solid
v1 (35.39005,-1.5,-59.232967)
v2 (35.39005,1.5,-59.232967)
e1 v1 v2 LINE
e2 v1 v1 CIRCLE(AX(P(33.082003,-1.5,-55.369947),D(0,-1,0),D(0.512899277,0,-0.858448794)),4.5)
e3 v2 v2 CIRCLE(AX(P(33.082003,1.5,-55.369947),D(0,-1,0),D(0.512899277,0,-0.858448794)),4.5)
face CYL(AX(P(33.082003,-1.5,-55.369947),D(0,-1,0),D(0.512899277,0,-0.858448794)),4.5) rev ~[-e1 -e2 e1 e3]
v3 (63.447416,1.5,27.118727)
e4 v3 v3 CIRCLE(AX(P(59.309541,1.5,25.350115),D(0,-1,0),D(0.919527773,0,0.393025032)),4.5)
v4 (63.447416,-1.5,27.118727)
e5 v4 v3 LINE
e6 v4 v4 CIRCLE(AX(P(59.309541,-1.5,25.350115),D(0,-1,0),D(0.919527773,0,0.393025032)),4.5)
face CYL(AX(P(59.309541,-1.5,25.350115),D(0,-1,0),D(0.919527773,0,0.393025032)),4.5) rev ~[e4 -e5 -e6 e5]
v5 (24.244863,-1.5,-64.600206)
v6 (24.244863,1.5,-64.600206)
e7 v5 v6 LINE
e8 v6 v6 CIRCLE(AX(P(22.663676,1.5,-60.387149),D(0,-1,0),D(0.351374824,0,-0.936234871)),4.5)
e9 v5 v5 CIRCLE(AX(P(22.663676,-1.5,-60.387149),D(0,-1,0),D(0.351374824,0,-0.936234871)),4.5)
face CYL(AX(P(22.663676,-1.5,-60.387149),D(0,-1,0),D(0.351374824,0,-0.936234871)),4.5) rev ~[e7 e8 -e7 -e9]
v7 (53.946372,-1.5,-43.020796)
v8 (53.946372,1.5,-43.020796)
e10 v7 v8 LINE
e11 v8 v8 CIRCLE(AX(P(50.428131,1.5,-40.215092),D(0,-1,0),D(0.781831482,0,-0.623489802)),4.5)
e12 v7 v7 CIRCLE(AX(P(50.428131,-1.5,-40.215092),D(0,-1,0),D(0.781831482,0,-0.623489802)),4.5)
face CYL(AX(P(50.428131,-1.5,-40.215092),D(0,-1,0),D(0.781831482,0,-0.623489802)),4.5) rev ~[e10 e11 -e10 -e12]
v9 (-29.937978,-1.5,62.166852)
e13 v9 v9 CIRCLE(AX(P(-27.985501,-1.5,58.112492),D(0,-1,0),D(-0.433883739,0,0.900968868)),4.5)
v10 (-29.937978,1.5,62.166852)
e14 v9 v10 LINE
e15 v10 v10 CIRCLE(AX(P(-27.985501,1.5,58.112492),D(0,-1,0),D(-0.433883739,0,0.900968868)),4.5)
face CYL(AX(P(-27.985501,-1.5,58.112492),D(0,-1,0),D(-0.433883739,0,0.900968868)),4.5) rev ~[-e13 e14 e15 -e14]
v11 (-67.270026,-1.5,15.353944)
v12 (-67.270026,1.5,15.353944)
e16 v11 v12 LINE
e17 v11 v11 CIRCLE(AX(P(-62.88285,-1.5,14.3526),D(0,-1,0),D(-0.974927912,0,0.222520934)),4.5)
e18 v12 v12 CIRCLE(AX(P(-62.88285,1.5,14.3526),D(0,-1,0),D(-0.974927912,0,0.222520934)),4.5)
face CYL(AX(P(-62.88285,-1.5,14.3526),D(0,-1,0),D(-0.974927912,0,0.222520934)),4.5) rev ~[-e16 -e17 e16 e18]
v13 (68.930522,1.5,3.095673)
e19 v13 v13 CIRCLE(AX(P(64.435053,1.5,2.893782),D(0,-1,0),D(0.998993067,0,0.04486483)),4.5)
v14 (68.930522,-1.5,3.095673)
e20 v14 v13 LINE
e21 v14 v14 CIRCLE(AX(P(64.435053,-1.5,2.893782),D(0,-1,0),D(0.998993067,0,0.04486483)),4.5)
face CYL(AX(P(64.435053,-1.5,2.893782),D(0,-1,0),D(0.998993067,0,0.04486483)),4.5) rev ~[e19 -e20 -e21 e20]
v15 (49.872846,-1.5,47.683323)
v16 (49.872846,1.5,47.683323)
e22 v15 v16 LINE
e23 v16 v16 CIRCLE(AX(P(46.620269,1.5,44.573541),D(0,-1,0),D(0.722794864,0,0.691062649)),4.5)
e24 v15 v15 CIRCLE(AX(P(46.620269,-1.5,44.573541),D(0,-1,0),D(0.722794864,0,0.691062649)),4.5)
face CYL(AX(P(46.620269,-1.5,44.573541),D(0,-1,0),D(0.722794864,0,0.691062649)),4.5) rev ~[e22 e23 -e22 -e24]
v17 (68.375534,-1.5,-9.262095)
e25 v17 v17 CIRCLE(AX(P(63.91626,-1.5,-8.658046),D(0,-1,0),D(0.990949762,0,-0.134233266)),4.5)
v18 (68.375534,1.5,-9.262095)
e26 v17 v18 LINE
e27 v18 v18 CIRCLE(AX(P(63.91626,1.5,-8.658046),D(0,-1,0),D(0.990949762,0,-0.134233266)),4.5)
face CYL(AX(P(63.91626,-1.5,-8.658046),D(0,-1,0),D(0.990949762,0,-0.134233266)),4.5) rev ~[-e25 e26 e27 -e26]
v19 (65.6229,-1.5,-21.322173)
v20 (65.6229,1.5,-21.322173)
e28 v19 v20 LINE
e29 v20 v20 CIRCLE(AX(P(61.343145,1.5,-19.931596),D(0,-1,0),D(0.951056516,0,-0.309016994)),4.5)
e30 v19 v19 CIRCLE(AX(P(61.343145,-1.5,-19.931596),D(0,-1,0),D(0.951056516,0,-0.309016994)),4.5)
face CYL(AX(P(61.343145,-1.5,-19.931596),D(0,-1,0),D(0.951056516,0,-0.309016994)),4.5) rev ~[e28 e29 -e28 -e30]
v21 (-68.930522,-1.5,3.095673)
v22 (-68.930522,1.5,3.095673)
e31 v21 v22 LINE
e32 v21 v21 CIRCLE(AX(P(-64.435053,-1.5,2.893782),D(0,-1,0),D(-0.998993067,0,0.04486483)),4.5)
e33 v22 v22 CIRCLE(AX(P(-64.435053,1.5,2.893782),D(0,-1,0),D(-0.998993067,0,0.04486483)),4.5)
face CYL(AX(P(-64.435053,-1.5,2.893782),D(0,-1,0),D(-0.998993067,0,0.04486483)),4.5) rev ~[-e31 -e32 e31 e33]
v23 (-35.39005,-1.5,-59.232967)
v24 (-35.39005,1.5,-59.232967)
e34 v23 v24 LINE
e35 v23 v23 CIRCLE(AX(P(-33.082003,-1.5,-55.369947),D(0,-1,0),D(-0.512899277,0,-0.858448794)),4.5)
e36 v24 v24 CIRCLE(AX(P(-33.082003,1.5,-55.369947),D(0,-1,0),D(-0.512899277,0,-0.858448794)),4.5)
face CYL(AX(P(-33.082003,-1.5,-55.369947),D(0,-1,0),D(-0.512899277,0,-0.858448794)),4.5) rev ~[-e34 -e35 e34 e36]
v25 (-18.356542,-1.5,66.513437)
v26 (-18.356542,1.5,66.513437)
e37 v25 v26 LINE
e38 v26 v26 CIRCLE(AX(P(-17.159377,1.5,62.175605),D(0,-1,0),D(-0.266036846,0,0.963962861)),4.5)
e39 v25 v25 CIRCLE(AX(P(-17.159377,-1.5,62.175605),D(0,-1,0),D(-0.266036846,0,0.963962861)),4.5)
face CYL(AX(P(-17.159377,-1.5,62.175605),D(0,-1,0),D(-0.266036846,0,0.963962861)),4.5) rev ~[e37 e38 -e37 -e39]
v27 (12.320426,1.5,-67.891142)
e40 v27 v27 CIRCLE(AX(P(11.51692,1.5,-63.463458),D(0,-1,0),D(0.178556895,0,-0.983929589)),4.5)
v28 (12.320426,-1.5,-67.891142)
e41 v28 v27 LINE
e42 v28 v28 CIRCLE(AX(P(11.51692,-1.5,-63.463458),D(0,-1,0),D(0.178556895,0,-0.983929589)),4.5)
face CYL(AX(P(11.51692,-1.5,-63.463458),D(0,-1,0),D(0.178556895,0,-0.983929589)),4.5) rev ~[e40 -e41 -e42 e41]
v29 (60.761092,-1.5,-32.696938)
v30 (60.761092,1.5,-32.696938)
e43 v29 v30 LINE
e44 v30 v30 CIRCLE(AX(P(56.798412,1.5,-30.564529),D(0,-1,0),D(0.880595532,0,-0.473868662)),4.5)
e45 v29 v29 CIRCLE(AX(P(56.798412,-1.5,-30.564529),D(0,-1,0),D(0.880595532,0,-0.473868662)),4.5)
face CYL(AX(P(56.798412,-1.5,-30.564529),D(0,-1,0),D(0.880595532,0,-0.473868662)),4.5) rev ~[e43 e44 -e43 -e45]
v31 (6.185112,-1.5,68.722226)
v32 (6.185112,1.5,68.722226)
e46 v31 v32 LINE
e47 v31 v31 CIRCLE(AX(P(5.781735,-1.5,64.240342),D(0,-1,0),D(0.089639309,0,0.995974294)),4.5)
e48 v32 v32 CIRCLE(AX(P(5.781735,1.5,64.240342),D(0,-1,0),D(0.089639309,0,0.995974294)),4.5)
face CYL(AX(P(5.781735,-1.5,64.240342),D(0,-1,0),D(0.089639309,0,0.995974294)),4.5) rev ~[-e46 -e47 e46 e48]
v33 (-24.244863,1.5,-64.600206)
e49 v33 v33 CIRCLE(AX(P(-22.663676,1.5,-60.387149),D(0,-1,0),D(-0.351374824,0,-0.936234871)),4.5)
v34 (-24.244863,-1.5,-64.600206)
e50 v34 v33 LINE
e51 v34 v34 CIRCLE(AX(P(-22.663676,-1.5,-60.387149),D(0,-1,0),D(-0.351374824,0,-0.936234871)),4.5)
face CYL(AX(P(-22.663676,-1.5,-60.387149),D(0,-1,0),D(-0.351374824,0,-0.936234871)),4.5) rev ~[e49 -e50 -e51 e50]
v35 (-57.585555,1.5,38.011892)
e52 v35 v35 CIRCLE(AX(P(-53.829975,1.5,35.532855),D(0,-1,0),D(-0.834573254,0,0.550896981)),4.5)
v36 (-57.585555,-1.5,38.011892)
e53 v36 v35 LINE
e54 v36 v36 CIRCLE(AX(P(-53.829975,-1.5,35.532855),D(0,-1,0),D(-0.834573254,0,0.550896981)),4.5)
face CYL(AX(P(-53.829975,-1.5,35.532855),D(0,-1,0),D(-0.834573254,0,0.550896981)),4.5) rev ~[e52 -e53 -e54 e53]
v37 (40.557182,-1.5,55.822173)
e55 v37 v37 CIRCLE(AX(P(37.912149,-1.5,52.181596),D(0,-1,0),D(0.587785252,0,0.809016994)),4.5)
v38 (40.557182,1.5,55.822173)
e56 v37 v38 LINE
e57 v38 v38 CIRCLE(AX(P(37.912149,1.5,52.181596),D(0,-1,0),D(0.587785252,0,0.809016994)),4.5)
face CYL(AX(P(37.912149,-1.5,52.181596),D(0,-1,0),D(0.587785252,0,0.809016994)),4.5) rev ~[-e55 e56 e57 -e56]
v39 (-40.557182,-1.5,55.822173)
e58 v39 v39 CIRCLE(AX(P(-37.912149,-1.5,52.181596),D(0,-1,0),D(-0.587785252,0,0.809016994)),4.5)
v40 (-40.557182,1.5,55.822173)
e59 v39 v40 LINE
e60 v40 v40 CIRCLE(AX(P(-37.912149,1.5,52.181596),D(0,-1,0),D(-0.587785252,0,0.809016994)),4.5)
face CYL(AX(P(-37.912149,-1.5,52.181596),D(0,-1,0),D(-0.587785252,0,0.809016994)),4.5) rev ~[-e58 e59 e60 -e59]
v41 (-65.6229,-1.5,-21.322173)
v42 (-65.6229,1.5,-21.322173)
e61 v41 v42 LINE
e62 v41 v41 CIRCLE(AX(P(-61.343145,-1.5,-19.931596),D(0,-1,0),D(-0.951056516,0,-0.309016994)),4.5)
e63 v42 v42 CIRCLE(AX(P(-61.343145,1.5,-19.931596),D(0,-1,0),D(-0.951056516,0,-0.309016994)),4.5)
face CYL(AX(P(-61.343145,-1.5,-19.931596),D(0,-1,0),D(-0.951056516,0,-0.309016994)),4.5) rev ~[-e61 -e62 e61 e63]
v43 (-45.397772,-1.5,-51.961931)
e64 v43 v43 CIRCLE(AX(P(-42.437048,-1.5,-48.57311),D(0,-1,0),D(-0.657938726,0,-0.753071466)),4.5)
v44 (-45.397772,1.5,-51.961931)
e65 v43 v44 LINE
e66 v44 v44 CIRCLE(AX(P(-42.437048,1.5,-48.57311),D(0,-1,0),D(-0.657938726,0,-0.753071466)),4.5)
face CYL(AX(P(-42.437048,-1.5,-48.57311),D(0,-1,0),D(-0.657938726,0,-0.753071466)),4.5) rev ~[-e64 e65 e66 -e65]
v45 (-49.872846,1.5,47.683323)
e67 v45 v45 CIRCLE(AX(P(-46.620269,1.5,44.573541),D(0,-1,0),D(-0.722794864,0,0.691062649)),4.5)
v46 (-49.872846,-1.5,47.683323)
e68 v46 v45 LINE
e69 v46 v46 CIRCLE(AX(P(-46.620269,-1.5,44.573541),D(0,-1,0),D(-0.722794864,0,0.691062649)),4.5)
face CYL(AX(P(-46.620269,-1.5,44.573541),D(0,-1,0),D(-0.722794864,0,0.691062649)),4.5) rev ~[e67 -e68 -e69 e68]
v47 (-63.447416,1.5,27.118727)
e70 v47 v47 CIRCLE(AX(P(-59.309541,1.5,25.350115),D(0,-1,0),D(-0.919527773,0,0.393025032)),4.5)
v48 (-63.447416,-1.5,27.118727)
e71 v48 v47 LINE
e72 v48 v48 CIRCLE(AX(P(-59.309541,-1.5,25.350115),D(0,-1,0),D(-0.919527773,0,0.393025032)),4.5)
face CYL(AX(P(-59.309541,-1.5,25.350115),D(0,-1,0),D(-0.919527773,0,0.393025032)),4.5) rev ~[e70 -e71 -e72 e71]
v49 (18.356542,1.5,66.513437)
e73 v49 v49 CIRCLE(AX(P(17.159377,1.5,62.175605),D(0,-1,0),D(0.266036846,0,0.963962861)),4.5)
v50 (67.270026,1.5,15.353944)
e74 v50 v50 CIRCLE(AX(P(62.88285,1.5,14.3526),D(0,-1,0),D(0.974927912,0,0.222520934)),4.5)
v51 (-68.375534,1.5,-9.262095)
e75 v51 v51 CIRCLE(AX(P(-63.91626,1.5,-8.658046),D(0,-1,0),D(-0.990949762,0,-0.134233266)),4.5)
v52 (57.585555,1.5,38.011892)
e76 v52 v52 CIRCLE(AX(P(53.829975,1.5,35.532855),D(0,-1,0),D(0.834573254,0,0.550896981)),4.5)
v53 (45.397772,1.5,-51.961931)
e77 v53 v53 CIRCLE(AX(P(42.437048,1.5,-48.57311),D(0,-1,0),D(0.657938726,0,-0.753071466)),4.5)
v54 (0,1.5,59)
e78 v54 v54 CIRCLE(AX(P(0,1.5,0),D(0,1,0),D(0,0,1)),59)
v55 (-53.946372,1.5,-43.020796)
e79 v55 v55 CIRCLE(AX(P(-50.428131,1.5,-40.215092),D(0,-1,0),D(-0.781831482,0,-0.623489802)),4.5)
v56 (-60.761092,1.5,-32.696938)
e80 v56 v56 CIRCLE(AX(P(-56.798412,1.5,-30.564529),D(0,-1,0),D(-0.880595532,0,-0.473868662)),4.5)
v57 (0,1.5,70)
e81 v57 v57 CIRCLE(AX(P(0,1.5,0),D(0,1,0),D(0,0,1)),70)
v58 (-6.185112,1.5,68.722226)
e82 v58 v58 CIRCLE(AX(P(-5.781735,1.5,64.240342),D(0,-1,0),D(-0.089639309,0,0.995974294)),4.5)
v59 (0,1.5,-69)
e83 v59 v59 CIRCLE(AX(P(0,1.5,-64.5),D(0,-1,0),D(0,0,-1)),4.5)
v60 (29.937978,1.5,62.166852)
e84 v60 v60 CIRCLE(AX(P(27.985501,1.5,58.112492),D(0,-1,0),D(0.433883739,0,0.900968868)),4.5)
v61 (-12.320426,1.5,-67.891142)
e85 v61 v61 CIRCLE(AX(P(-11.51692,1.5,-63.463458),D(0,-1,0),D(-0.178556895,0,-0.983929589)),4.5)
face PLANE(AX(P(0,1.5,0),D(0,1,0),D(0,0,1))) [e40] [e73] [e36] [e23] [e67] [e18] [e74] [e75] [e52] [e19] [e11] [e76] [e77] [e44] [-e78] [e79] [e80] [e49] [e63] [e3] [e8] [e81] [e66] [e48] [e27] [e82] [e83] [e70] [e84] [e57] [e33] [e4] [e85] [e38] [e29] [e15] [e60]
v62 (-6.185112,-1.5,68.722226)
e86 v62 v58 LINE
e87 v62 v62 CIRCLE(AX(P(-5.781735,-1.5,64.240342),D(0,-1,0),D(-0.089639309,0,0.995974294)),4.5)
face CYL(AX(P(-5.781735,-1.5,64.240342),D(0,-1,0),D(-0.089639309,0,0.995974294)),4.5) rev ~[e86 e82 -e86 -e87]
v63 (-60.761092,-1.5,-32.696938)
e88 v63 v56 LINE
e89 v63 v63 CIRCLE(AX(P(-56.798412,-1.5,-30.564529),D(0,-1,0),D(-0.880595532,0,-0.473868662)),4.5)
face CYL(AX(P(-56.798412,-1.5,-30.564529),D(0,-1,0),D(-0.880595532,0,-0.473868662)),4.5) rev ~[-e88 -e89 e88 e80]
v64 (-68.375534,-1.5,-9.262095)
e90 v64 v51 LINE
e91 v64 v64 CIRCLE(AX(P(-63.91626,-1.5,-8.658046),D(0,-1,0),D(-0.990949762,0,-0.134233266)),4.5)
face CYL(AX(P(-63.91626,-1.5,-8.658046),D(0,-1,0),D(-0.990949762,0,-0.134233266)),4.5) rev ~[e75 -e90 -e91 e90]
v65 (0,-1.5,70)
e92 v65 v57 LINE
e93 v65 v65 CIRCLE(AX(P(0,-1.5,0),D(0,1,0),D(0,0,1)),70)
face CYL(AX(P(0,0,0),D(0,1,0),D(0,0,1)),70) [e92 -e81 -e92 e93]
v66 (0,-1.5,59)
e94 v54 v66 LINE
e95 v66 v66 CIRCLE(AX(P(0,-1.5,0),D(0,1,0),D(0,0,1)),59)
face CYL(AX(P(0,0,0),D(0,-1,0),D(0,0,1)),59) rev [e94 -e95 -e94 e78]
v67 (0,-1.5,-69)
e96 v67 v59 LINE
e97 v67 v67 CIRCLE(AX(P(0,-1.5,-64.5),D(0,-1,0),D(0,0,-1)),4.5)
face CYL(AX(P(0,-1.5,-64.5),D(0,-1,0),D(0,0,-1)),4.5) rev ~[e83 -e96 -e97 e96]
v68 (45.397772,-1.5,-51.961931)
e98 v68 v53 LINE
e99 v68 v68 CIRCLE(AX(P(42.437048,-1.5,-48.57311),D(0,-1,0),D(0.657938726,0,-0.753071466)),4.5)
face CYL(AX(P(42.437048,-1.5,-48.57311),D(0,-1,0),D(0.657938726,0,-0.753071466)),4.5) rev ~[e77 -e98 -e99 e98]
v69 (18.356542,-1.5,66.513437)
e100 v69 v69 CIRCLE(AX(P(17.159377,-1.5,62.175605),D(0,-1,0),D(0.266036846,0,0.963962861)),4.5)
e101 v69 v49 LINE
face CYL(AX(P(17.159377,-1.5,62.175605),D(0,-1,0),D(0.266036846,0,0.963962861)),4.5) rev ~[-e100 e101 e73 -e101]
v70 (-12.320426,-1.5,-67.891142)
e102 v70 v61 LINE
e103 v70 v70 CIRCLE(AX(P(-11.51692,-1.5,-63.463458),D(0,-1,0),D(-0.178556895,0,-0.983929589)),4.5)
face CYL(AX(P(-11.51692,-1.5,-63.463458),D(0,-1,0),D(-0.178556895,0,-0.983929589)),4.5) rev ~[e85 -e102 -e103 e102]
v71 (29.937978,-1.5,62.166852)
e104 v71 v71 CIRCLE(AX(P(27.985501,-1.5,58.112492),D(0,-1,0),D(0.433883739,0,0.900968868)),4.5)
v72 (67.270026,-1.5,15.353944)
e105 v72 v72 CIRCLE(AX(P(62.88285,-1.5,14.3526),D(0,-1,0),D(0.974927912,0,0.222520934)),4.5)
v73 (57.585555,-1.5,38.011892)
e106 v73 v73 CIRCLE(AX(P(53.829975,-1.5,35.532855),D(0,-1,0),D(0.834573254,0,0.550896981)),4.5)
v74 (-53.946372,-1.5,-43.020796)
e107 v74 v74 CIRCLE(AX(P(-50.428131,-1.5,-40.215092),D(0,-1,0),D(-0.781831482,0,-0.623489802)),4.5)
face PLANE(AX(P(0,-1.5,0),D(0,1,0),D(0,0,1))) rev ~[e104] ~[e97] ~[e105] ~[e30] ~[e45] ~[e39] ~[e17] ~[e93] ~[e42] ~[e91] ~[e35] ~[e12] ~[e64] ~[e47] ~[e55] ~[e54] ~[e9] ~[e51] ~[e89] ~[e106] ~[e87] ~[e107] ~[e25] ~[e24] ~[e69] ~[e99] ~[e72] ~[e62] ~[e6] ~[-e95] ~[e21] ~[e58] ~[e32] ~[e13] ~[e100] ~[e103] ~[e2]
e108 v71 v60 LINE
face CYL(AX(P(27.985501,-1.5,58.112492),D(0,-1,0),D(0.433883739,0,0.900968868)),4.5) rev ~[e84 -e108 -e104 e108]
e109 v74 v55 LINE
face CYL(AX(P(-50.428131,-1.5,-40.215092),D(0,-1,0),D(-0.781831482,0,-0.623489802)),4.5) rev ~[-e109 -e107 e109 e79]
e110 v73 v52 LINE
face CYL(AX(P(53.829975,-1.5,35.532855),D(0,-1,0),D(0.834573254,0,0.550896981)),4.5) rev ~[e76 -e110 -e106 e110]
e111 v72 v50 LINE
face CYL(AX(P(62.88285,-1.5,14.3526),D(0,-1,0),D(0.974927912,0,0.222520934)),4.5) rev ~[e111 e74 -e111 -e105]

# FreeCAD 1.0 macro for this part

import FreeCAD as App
import Part
import Sketcher
Q = App.Units.Quantity

doc = App.newDocument("Part")
body = doc.addObject("PartDesign::Body", "Body")

sketch1 = body.newObject("Sketcher::SketchObject", "Sketch")
sketch1.AttachmentSupport = (doc.getObject("XZ_Plane"), [""])
sketch1.MapMode = "FlatFace"
sketch1.addGeometry([
    Part.Circle(App.Vector(0, 0, 0), App.Vector(0, 0, 1), 70),
    Part.Circle(App.Vector(0, 0, 0), App.Vector(0, 0, 1), 59),
], False)
sketch1.addConstraint([
    Sketcher.Constraint("Coincident", 0, 3, -1, 1),
    Sketcher.Constraint("Coincident", 1, 3, -1, 1),
    Sketcher.Constraint("Diameter", 0, Q("140 mm")),
    Sketcher.Constraint("Diameter", 1, Q("118 mm")),
])
pad1 = body.newObject("PartDesign::Pad", "Pad")
pad1.Profile = sketch1
pad1.Length = 3
pad1.Midplane = True

sketch2 = body.newObject("Sketcher::SketchObject", "Sketch001")
sketch2.AttachmentSupport = (doc.getObject("XZ_Plane"), [""])
sketch2.MapMode = "FlatFace"
sketch2.AttachmentOffset = App.Placement(App.Vector(0, 0, 1.5), App.Rotation())
sketch2.addGeometry(Part.Circle(App.Vector(0, -64.5, 0), App.Vector(0, 0, 1), 4.5), False)
sketch2.addConstraint([
    Sketcher.Constraint("PointOnObject", 0, 3, -2),
    Sketcher.Constraint("Diameter", 0, Q("9 mm")),
    Sketcher.Constraint("DistanceY", 0, 3, -1, 1, Q("64.5 mm")),
])
pocket1 = body.newObject("PartDesign::Pocket", "Pocket")
pocket1.Profile = sketch2
pocket1.Length = 5
doc.recompute()

polarpattern = body.newObject("PartDesign::PolarPattern", "PolarPattern")
polarpattern.Originals = [pocket1]
polarpattern.Axis = (doc.getObject("Y_Axis"), [""])
polarpattern.Angle = 360
polarpattern.Occurrences = 35
body.Tip = polarpattern

doc.recompute()
